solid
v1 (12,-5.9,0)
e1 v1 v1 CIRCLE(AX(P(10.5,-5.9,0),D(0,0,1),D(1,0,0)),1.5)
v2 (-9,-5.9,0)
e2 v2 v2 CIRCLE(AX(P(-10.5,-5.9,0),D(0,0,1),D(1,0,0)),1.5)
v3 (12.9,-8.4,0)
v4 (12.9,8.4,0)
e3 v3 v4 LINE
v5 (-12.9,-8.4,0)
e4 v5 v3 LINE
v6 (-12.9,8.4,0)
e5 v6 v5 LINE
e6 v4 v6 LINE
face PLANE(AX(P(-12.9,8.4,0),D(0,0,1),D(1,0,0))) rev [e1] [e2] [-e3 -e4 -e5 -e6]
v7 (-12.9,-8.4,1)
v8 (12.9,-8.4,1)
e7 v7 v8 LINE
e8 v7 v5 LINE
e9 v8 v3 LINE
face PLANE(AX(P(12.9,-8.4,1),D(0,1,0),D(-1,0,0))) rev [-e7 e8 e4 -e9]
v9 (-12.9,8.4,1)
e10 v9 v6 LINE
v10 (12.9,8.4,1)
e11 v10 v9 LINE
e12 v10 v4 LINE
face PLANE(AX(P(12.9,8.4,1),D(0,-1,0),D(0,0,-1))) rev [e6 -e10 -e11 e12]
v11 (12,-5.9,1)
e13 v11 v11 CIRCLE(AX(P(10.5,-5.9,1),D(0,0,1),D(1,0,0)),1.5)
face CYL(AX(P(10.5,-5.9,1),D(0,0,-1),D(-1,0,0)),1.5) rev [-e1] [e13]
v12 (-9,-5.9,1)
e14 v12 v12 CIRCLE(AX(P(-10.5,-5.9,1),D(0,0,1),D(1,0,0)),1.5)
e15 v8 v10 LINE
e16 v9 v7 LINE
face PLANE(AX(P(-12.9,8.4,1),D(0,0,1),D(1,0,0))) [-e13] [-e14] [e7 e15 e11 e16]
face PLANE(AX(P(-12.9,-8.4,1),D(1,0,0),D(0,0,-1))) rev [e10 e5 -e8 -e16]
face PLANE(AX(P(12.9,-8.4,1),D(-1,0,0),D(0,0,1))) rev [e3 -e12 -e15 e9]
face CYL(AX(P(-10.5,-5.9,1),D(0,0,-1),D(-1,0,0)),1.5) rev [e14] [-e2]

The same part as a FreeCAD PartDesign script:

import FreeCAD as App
import Part
import Sketcher
Q = App.Units.Quantity


def add_polygon(sketch, points):
    """Adds a closed chain of lines whose ends are joined by coincident constraints."""
    first, n = sketch.GeometryCount, len(points)
    for a, b in zip(points, points[1:] + points[:1]):
        sketch.addGeometry(Part.LineSegment(App.Vector(*a, 0), App.Vector(*b, 0)), False)
    for i in range(n):
        sketch.addConstraint(Sketcher.Constraint("Coincident", first + i, 2, first + (i + 1) % n, 1))

doc = App.newDocument("Part")
body = doc.addObject("PartDesign::Body", "Body")

# Sketch on XY plane
sketch1 = body.newObject("Sketcher::SketchObject", "Sketch")
sketch1.AttachmentSupport = (doc.getObject("XY_Plane"), [""])
sketch1.MapMode = "FlatFace"
add_polygon(sketch1, [(-12.9, 8.4), (-12.9, -8.4), (12.9, -8.4), (12.9, 8.4)])  # lines 0-3
sketch1.addGeometry(Part.Circle(App.Vector(-10.5, -5.9, 0), App.Vector(0, 0, 1), 1.5), False)  # 4
sketch1.addGeometry(Part.Circle(App.Vector(10.5, -5.9, 0), App.Vector(0, 0, 1), 1.5), False)  # 5
sketch1.addConstraint(Sketcher.Constraint("Vertical", 0))
sketch1.addConstraint(Sketcher.Constraint("Horizontal", 1))
sketch1.addConstraint(Sketcher.Constraint("Vertical", 2))
sketch1.addConstraint(Sketcher.Constraint("Horizontal", 3))
sketch1.addConstraint(Sketcher.Constraint("Equal", 4, 5))
sketch1.addConstraint(Sketcher.Constraint("Symmetric", 0, 2, 2, 2, -1, 1))
sketch1.addConstraint(Sketcher.Constraint("Symmetric", 4, 3, 5, 3, -2))
sketch1.addConstraint(Sketcher.Constraint("Diameter", 4, Q("3 mm")))
sketch1.addConstraint(Sketcher.Constraint("DistanceX", 1, 1, 1, 2, Q("25.8 mm")))
sketch1.addConstraint(Sketcher.Constraint("DistanceY", 0, 2, 0, 1, Q("16.8 mm")))
sketch1.addConstraint(Sketcher.Constraint("DistanceX", 4, 3, 5, 3, Q("21 mm")))
sketch1.addConstraint(Sketcher.Constraint("DistanceY", 4, 3, -1, 1, Q("5.9 mm")))
pad1 = body.newObject("PartDesign::Pad", "Pad")
pad1.Profile = sketch1
pad1.Length = 1

doc.recompute()
